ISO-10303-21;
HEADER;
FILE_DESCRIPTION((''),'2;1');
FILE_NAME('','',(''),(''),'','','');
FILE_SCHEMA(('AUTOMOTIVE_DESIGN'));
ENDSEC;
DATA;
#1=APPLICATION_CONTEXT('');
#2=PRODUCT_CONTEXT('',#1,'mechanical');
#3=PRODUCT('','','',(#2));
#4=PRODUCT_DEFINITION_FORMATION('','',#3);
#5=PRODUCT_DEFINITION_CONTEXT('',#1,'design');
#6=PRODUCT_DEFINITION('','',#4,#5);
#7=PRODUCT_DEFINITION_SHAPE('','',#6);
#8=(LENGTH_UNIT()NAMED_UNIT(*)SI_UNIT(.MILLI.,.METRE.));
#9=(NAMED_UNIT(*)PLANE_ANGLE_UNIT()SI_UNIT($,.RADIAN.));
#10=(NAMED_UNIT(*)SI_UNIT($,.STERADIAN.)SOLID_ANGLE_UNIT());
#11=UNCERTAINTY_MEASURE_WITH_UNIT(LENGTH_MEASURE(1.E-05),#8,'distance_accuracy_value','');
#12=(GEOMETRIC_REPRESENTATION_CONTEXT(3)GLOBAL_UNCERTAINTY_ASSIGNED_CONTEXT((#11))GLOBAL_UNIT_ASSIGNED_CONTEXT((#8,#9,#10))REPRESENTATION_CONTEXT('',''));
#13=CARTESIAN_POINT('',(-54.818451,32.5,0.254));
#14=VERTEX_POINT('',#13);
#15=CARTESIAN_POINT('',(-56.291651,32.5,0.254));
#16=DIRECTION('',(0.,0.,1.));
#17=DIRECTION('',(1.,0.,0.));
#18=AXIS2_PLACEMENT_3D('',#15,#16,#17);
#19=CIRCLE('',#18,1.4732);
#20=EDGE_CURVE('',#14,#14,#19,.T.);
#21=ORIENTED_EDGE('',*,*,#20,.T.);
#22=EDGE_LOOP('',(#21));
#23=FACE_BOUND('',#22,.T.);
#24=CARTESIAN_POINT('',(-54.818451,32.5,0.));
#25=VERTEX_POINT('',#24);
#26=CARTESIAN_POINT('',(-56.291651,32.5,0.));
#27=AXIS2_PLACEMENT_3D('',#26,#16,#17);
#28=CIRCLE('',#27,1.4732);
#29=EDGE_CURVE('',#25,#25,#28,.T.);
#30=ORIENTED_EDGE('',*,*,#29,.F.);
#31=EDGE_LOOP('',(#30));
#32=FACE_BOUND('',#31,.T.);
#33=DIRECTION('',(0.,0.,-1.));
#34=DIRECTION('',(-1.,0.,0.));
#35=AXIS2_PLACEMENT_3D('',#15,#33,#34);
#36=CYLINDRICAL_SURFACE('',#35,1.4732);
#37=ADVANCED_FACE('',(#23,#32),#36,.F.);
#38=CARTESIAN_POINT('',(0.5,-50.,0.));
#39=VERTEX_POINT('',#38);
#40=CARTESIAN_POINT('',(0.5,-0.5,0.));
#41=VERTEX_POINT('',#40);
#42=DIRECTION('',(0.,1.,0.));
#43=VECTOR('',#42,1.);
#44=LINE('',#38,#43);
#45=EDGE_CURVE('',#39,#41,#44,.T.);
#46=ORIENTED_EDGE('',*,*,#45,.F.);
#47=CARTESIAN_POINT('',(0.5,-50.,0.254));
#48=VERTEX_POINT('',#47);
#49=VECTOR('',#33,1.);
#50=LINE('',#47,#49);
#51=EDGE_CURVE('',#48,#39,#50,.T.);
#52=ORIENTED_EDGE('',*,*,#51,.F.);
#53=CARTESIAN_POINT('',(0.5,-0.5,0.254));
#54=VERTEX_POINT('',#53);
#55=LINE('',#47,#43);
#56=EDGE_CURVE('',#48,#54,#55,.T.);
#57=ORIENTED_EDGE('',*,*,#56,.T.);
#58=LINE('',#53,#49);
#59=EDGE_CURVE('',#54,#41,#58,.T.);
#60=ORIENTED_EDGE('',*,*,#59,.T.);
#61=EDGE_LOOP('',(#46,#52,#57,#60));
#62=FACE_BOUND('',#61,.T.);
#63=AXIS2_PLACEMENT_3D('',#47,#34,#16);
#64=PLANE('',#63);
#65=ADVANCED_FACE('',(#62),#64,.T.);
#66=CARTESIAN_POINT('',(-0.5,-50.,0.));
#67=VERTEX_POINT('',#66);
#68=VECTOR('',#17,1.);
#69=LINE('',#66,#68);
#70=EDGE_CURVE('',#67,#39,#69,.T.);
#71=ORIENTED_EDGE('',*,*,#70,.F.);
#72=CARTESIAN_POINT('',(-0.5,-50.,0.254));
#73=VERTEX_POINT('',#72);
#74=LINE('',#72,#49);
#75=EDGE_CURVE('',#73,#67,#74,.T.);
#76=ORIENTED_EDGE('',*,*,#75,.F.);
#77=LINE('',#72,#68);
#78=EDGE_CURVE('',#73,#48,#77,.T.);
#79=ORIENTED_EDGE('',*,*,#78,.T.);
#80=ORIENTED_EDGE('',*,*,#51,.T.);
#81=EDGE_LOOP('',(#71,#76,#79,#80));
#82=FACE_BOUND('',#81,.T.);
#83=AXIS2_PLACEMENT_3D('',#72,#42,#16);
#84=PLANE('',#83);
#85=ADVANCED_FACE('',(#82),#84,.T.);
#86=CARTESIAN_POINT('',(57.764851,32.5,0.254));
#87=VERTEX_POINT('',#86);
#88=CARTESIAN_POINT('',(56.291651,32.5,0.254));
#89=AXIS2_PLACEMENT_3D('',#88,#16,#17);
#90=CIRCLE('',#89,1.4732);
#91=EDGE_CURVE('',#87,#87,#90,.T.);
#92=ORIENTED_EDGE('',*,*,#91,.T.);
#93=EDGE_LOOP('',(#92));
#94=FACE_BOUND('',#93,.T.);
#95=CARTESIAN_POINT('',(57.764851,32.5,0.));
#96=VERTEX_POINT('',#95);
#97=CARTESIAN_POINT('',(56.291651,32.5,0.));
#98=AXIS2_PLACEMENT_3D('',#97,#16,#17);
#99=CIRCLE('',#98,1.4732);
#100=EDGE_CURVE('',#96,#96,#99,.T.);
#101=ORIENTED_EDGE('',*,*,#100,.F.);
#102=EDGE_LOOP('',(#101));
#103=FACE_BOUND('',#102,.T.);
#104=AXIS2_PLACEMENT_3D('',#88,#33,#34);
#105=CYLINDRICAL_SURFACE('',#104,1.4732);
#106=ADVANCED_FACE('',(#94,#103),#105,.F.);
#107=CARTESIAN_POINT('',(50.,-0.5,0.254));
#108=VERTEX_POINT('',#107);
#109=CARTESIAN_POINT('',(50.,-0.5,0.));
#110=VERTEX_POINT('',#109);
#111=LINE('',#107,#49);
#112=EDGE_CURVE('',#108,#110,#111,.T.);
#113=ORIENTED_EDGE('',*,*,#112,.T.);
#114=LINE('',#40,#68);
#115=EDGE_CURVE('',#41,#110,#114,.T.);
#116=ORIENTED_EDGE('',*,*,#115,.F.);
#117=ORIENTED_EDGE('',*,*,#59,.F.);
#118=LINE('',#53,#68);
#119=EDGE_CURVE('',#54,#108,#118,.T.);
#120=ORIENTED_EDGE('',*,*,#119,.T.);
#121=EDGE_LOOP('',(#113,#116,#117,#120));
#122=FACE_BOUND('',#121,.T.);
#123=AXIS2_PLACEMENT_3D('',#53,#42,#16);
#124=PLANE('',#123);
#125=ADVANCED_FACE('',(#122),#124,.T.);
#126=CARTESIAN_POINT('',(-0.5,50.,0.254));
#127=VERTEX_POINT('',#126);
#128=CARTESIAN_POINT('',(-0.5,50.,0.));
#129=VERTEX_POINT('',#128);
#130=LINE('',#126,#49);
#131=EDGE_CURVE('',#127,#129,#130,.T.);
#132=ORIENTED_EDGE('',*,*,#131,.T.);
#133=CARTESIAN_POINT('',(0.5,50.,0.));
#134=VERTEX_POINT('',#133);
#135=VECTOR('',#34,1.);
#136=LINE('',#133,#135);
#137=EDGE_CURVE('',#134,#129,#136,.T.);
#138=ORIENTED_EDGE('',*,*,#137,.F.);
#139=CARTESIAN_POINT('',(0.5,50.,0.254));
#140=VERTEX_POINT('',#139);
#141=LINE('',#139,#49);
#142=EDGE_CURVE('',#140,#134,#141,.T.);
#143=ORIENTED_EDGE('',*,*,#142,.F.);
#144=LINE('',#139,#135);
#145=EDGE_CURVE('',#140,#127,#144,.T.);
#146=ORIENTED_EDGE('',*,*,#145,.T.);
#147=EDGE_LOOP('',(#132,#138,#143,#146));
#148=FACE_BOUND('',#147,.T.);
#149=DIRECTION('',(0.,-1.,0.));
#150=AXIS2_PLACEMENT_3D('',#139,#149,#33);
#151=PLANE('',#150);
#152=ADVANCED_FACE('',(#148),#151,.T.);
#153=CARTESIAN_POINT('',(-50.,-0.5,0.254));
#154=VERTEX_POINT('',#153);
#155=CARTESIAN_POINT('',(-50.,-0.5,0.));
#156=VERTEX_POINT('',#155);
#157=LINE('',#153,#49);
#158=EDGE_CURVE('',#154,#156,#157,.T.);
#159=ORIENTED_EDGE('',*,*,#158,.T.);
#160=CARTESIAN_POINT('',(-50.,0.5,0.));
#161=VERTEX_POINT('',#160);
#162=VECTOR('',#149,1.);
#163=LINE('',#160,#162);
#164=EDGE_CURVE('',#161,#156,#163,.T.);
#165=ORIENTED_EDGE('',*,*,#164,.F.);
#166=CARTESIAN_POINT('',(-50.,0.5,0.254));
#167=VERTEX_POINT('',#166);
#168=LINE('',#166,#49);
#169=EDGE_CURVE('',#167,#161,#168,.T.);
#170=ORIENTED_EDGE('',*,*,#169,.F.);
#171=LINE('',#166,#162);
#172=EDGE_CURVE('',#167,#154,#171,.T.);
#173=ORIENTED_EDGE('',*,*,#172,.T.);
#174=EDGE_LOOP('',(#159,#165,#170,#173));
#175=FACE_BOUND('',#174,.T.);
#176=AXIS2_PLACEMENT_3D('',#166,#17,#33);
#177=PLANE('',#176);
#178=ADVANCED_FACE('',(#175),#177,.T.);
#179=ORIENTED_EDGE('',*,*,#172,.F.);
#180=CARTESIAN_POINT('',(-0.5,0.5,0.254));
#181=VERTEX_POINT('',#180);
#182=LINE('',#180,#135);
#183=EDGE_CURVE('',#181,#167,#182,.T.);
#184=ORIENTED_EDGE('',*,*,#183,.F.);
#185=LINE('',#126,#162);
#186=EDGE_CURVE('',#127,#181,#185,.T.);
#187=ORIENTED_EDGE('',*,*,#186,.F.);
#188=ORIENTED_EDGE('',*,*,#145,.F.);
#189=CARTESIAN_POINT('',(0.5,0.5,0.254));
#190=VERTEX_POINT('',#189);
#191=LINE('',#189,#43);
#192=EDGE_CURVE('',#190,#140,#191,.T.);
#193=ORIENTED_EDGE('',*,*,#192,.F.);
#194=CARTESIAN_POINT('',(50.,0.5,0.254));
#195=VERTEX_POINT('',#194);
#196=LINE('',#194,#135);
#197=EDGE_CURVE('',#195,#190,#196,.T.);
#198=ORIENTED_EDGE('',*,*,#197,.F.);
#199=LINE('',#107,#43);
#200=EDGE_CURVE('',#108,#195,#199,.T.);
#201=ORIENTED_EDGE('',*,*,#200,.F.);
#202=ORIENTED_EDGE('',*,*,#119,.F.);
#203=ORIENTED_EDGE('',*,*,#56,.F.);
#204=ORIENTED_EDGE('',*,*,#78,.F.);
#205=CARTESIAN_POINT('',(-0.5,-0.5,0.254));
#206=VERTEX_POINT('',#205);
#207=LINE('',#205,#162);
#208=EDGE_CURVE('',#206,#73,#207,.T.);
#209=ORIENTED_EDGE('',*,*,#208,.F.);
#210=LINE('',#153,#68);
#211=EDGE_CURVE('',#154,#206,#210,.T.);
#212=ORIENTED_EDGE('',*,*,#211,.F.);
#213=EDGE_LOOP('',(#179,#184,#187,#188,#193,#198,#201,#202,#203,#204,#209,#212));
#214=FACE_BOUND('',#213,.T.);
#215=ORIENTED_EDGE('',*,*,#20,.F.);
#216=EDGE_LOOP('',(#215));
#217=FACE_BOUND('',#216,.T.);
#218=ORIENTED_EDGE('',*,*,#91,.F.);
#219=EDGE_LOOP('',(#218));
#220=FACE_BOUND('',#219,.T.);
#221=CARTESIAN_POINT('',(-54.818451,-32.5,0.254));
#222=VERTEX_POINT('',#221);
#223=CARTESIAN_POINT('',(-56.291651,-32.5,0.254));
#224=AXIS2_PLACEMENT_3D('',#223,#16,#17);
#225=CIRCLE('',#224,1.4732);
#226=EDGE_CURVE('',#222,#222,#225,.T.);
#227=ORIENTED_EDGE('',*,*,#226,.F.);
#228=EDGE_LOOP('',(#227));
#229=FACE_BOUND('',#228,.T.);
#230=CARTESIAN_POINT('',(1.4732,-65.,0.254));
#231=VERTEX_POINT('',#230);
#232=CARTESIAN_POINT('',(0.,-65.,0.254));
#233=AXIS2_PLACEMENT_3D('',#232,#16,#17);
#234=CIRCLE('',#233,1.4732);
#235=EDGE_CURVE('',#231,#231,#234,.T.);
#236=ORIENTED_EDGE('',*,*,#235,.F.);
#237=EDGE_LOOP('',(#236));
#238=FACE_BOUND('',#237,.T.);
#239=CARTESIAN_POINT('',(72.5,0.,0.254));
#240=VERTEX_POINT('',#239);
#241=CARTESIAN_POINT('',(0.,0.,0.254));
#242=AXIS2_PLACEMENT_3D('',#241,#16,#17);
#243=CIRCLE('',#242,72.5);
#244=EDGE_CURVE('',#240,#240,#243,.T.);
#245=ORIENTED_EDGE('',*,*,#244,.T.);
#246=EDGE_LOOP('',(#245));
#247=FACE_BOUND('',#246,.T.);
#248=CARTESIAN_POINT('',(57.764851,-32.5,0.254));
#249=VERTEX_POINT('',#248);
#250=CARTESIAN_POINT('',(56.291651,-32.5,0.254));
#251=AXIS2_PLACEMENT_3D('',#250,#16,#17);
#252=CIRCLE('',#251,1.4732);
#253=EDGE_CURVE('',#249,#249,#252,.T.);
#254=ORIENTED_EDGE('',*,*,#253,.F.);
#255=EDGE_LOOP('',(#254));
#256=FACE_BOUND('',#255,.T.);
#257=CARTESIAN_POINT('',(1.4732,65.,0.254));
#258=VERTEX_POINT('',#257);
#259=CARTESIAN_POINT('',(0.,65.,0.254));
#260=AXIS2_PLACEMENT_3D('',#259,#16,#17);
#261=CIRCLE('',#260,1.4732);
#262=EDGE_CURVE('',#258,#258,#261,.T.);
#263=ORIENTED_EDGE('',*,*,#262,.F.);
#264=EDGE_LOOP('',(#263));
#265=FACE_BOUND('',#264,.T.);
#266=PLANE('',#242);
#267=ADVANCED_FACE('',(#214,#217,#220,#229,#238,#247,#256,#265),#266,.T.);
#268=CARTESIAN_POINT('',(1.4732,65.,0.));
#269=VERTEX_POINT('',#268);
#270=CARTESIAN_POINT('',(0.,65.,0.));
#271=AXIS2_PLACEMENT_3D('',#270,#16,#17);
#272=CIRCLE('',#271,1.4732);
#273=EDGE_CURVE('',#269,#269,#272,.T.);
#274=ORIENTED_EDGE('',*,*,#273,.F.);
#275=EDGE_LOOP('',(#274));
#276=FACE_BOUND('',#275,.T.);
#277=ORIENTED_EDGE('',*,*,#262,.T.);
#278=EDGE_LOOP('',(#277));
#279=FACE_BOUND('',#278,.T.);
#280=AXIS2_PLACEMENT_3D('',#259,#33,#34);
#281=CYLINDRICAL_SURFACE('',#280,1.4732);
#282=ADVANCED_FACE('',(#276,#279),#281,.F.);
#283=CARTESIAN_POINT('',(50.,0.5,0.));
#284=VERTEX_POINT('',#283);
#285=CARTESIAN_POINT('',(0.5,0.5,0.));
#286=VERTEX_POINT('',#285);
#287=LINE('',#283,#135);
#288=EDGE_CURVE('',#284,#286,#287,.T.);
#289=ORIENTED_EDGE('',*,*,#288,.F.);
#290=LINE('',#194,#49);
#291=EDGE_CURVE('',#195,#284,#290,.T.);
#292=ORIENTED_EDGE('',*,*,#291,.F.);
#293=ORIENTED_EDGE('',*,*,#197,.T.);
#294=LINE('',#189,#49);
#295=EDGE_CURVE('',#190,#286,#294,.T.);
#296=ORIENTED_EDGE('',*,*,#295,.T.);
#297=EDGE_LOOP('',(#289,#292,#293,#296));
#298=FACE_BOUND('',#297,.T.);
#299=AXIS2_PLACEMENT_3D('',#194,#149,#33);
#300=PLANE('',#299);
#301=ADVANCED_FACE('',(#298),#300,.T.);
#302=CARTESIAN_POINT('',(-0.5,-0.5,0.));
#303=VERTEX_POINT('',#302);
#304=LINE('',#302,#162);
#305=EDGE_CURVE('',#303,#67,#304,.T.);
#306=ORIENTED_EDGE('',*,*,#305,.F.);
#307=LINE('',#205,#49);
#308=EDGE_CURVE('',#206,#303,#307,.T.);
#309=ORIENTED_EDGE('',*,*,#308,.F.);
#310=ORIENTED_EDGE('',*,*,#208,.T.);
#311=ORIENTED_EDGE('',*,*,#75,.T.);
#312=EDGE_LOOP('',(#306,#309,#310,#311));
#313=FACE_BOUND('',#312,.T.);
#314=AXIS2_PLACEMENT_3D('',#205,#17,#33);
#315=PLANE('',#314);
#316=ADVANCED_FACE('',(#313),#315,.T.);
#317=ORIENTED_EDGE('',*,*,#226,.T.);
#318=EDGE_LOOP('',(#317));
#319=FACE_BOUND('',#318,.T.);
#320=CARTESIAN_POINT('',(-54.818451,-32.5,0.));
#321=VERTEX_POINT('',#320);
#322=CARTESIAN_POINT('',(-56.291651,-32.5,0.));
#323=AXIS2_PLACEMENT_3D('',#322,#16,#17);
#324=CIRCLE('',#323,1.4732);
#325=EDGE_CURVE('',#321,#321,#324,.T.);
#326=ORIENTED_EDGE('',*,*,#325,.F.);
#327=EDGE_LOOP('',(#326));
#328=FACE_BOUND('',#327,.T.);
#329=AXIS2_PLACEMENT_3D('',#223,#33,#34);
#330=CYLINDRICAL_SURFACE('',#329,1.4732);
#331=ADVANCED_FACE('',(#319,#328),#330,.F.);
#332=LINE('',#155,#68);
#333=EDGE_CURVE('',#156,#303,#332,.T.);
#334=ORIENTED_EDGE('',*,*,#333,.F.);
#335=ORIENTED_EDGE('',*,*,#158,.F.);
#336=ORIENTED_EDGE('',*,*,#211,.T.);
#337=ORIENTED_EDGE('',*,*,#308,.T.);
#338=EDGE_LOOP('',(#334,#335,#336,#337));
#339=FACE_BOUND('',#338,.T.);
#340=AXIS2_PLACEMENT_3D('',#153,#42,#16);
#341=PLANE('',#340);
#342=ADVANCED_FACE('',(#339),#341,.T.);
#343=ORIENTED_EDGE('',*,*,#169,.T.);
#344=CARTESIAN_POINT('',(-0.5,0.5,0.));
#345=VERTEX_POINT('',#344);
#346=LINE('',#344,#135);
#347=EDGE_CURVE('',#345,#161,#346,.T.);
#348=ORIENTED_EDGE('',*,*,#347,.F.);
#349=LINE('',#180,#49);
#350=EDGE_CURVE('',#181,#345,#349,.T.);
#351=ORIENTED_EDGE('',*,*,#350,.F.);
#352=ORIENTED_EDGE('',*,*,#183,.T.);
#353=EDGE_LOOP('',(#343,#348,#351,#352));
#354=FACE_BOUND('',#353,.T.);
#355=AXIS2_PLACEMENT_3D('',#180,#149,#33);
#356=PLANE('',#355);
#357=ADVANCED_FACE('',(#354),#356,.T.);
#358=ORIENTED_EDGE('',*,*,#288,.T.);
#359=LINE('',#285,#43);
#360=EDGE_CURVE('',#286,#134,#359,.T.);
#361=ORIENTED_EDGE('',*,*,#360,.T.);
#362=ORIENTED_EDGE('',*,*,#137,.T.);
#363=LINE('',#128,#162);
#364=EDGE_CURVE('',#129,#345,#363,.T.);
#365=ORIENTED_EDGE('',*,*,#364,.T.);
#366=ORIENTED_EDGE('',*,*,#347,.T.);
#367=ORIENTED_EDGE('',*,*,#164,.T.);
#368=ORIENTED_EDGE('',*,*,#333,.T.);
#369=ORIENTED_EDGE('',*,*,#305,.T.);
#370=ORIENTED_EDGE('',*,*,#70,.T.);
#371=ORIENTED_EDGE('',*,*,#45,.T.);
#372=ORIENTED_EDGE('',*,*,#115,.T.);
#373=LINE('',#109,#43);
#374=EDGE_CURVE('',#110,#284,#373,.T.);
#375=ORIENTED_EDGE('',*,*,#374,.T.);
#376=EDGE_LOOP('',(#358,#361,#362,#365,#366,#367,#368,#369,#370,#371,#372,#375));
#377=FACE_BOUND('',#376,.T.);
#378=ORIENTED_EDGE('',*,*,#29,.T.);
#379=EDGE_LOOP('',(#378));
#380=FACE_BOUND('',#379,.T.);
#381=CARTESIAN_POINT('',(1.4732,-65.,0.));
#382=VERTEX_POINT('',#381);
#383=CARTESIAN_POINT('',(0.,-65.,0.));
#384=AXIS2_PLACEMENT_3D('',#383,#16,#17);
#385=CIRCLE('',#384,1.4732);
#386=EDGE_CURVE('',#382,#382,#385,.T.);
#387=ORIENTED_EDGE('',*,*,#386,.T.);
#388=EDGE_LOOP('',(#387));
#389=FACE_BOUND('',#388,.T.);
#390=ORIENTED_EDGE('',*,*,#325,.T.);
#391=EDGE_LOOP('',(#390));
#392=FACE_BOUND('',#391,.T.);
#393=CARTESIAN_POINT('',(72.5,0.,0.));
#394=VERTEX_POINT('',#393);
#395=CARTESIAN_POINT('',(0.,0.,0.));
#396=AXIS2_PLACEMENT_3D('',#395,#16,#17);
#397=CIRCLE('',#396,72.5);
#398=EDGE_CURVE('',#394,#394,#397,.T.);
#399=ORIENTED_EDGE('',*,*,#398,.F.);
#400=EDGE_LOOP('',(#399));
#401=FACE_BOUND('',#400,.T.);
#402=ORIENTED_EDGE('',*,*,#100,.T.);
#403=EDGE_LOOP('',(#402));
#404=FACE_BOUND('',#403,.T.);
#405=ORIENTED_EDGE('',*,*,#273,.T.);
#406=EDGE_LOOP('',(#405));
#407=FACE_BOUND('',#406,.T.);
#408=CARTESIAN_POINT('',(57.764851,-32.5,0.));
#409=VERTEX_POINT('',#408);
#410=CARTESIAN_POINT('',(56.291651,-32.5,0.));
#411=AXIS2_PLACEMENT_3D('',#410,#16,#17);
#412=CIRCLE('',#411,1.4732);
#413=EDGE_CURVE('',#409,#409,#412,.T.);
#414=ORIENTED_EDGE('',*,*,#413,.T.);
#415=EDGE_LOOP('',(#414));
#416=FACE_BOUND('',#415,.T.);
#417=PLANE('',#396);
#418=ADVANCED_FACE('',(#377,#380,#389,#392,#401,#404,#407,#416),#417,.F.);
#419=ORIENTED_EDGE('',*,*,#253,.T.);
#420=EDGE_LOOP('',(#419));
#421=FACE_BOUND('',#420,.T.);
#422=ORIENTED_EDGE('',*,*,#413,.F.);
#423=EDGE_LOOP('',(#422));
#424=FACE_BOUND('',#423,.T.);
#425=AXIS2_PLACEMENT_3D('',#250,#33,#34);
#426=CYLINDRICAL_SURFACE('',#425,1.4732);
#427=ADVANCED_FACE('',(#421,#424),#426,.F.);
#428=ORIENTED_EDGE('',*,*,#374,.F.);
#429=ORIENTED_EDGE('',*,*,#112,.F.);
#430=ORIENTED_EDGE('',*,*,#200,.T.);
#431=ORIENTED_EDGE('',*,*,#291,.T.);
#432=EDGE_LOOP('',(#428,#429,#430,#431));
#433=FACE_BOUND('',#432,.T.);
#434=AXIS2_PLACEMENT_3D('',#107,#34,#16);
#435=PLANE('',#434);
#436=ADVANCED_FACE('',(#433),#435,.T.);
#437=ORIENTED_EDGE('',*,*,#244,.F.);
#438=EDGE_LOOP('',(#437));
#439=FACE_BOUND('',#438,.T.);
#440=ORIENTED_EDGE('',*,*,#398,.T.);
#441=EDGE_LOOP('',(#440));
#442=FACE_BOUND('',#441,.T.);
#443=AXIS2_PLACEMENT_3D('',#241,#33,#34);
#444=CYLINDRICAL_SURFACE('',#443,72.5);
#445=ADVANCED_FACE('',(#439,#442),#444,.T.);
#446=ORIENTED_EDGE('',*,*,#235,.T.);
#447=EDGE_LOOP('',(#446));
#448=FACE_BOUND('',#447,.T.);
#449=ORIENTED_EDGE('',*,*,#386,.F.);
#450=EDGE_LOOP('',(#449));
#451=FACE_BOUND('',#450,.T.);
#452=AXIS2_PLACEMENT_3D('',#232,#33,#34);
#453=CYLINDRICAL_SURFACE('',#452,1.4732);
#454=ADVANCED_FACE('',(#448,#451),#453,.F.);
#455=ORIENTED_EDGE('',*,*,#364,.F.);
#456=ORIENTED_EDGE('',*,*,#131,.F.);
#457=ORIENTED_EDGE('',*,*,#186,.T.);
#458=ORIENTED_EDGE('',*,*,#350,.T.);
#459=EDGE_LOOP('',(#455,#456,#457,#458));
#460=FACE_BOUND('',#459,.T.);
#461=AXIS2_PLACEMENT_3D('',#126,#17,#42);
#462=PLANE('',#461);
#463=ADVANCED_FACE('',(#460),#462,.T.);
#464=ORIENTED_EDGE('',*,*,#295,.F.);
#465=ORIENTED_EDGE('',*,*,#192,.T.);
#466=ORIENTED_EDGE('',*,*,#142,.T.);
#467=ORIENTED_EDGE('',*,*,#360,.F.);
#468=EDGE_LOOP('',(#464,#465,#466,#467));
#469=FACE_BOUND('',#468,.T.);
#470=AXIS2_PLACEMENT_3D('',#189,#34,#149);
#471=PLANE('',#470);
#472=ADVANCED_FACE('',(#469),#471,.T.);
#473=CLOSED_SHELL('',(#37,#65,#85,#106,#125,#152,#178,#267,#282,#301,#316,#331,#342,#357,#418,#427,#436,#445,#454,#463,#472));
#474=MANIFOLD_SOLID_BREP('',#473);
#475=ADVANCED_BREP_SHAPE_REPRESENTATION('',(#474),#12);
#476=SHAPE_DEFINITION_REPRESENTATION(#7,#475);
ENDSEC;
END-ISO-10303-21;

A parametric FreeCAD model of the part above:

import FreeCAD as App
import Part
import Sketcher

doc = App.newDocument("Part")
body = doc.addObject("PartDesign::Body", "Body")

sketch1 = doc.addObject("Sketcher::SketchObject", "Sketch")
body.addObject(sketch1)
sketch1.AttachmentSupport = (doc.XY_Plane, [""])
sketch1.MapMode = "FlatFace"
sketch1.addGeometry([
    Part.Circle(App.Vector(0, 0, 0), App.Vector(0, 0, 1), 72.5),
    Part.Circle(App.Vector(-56.3, -32.5, 0), App.Vector(0, 0, 1), 1.5),
    Part.Circle(App.Vector(0, -65, 0), App.Vector(0, 0, 1), 1.5),
    Part.LineSegment(App.Vector(-0.5, 0.5, 0), App.Vector(-0.5, 50, 0)),
    Part.LineSegment(App.Vector(-0.5, 50, 0), App.Vector(0.5, 50, 0)),
    Part.LineSegment(App.Vector(0.5, 50, 0), App.Vector(0.5, 0.5, 0)),
    Part.LineSegment(App.Vector(0.5, 0.5, 0), App.Vector(50, 0.5, 0)),
    Part.LineSegment(App.Vector(50, 0.5, 0), App.Vector(50, -0.5, 0)),
    Part.LineSegment(App.Vector(50, -0.5, 0), App.Vector(0.5, -0.5, 0)),
    Part.LineSegment(App.Vector(0.5, -0.5, 0), App.Vector(0.5, -50, 0)),
    Part.LineSegment(App.Vector(0.5, -50, 0), App.Vector(-0.5, -50, 0)),
    Part.LineSegment(App.Vector(-0.5, -50, 0), App.Vector(-0.5, -0.5, 0)),
    Part.LineSegment(App.Vector(-0.5, -0.5, 0), App.Vector(-50, -0.5, 0)),
    Part.LineSegment(App.Vector(-50, -0.5, 0), App.Vector(-50, 0.5, 0)),
    Part.LineSegment(App.Vector(-50, 0.5, 0), App.Vector(-0.5, 0.5, 0)),
    Part.Circle(App.Vector(56.3, -32.5, 0), App.Vector(0, 0, 1), 1.5),
    Part.Circle(App.Vector(-56.3, 32.5, 0), App.Vector(0, 0, 1), 1.5),
    Part.Circle(App.Vector(56.3, 32.5, 0), App.Vector(0, 0, 1), 1.5),
    Part.Circle(App.Vector(0, 65, 0), App.Vector(0, 0, 1), 1.5),
], False)
sketch1.addConstraint([
    Sketcher.Constraint("Coincident", 3, 2, 4, 1),
    Sketcher.Constraint("Coincident", 4, 2, 5, 1),
    Sketcher.Constraint("Coincident", 5, 2, 6, 1),
    Sketcher.Constraint("Coincident", 6, 2, 7, 1),
    Sketcher.Constraint("Coincident", 7, 2, 8, 1),
    Sketcher.Constraint("Coincident", 8, 2, 9, 1),
    Sketcher.Constraint("Coincident", 9, 2, 10, 1),
    Sketcher.Constraint("Coincident", 10, 2, 11, 1),
    Sketcher.Constraint("Coincident", 11, 2, 12, 1),
    Sketcher.Constraint("Coincident", 12, 2, 13, 1),
    Sketcher.Constraint("Coincident", 13, 2, 14, 1),
    Sketcher.Constraint("Coincident", 14, 2, 3, 1),
    Sketcher.Constraint("Vertical", 3),
    Sketcher.Constraint("Horizontal", 4),
    Sketcher.Constraint("Vertical", 5),
    Sketcher.Constraint("Horizontal", 6),
    Sketcher.Constraint("Vertical", 7),
    Sketcher.Constraint("Horizontal", 8),
    Sketcher.Constraint("Vertical", 9),
    Sketcher.Constraint("Horizontal", 10),
    Sketcher.Constraint("Vertical", 11),
    Sketcher.Constraint("Horizontal", 12),
    Sketcher.Constraint("Vertical", 13),
    Sketcher.Constraint("Horizontal", 14),
    Sketcher.Constraint("Coincident", 0, 3, -1, 1),
    Sketcher.Constraint("Equal", 1, 2),
    Sketcher.Constraint("Equal", 2, 15),
    Sketcher.Constraint("Equal", 15, 16),
    Sketcher.Constraint("Equal", 16, 17),
    Sketcher.Constraint("Equal", 17, 18),
    Sketcher.Constraint("Symmetric", 15, 3, 16, 3, -1, 1),
    Sketcher.Constraint("Symmetric", 1, 3, 17, 3, -1, 1),
    Sketcher.Constraint("Symmetric", 2, 3, 18, 3, -1, 1),
    Sketcher.Constraint("Symmetric", 3, 2, 9, 2, -1, 1),
    Sketcher.Constraint("Symmetric", 5, 2, 11, 2, -1, 1),
    Sketcher.Constraint("Symmetric", 7, 2, 13, 2, -1, 1),
    Sketcher.Constraint("Symmetric", 1, 3, 15, 3, -2),
    Sketcher.Constraint("Symmetric", 8, 2, 11, 2, -2),
    Sketcher.Constraint("PointOnObject", 2, 3, -2),
    Sketcher.Constraint("Equal", 14, 3),
    Sketcher.Constraint("Equal", 10, 7),
    Sketcher.Constraint("Diameter", 0, 145.0),
    Sketcher.Constraint("DistanceX", 4, 1, 4, 2, 1.0),
    Sketcher.Constraint("DistanceX", 6, 1, 6, 2, 49.5),
    Sketcher.Constraint("DistanceY", 2, 3, -1, 1, 65.0),
    Sketcher.Constraint("DistanceY", 1, 3, 16, 3, 65.0),
    Sketcher.Constraint("Diameter", 1, 2.9464),
    Sketcher.Constraint("DistanceX", 1, 3, -1, 1, 56.291651),
])
pad1 = doc.addObject("PartDesign::Pad", "Pad")
body.addObject(pad1)
pad1.Profile = sketch1
pad1.Length = 0.254

doc.recompute()
